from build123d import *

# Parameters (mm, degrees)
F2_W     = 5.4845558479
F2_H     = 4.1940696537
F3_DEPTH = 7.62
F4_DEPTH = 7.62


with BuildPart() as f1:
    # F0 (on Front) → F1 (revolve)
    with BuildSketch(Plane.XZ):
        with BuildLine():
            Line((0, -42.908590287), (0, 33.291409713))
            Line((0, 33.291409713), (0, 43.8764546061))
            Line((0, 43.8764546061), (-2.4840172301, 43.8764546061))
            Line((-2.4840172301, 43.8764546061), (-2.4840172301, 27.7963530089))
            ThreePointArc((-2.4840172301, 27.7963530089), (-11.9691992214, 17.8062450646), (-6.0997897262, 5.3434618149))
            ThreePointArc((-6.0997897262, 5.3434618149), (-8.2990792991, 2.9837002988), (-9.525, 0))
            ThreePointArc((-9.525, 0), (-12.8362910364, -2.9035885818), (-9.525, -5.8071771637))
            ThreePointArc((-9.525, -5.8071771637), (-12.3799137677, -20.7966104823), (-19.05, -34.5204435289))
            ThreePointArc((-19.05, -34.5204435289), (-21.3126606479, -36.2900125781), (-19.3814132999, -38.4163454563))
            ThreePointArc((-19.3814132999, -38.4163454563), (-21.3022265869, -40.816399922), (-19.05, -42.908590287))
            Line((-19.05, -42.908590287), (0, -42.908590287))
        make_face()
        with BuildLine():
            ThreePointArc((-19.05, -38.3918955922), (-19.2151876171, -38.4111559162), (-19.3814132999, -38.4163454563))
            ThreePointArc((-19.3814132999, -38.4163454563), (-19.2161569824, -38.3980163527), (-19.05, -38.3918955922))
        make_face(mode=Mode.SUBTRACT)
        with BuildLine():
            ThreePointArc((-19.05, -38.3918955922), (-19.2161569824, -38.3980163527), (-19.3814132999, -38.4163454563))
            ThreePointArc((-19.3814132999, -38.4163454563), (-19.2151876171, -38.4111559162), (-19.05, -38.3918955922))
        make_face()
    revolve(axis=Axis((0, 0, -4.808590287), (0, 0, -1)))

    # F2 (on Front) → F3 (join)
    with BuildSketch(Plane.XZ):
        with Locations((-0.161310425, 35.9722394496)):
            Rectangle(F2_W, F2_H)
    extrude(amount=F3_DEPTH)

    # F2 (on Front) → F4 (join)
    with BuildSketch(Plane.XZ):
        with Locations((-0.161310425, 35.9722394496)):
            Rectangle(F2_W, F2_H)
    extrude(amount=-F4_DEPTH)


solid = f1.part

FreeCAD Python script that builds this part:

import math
import FreeCAD as App
import Part
import Sketcher

V = App.Vector
Q = App.Units.Quantity


def add_polygon(sketch, points):
    """Adds a closed chain of lines whose ends are joined by coincident constraints."""
    first, n = sketch.GeometryCount, len(points)
    for a, b in zip(points, points[1:] + points[:1]):
        sketch.addGeometry(Part.LineSegment(App.Vector(*a, 0), App.Vector(*b, 0)), False)
    for i in range(n):
        sketch.addConstraint(Sketcher.Constraint("Coincident", first + i, 2, first + (i + 1) % n, 1))

doc = App.newDocument("Part")
body = doc.addObject("PartDesign::Body", "Body")

sketch1 = doc.addObject("Sketcher::SketchObject", "Sketch")
body.addObject(sketch1)
sketch1.AttachmentSupport = (doc.XZ_Plane, [""])
sketch1.MapMode = "FlatFace"
sketch1.addGeometry(Part.ArcOfCircle(Part.Circle(V(-19.05, -40.650243, 0), V(0, 0, 1), 2.258347), math.radians(98.438652), math.radians(270)), False)
sketch1.addGeometry(Part.LineSegment(V(-19.05, -42.90859, 0), V(0, -42.90859, 0)), False)
sketch1.addGeometry(Part.LineSegment(V(0, -42.90859, 0), V(0, 43.876455, 0)), False)
sketch1.addGeometry(Part.LineSegment(V(0, 43.876455, 0), V(-2.484017, 43.876455, 0)), False)
sketch1.addGeometry(Part.LineSegment(V(-2.484017, 43.876455, 0), V(-2.484017, 27.796353, 0)), False)
sketch1.addGeometry(Part.ArcOfCircle(Part.Circle(V(0.077618, 15.866248, 0), V(0, 0, 1), 12.202024), math.radians(102.118557), math.radians(239.584912)), False)
sketch1.addGeometry(Part.ArcOfCircle(Part.Circle(V(-0.722293, -1.873092, 0), V(0, 0, 1), 8.999785), math.radians(126.692052), math.radians(167.987426)), False)
sketch1.addGeometry(Part.ArcOfCircle(Part.Circle(V(-9.907603, -2.903589, 0), V(0, 0, 1), 2.928688), math.radians(82.493432), math.radians(277.506568)), False)
sketch1.addGeometry(Part.ArcOfCircle(Part.Circle(V(-67.358241, -2.558749, 0), V(0, 0, 1), 57.9244), math.radians(-33.489415), math.radians(-3.214861)), False)
sketch1.addGeometry(Part.ArcOfCircle(Part.Circle(V(-19.359416, -36.45617, 0), V(0, 0, 1), 1.960299), math.radians(80.918391), math.radians(269.357043)), False)
sketch1.addConstraint(Sketcher.Constraint("Tangent", 0, 2, 1, 1))
sketch1.addConstraint(Sketcher.Constraint("Coincident", 1, 2, 2, 1))
sketch1.addConstraint(Sketcher.Constraint("Coincident", 2, 2, 3, 1))
sketch1.addConstraint(Sketcher.Constraint("Coincident", 3, 2, 4, 1))
sketch1.addConstraint(Sketcher.Constraint("Coincident", 4, 2, 5, 1))
sketch1.addConstraint(Sketcher.Constraint("Coincident", 5, 2, 6, 1))
sketch1.addConstraint(Sketcher.Constraint("Coincident", 6, 2, 7, 1))
sketch1.addConstraint(Sketcher.Constraint("Coincident", 7, 2, 8, 2))
sketch1.addConstraint(Sketcher.Constraint("Coincident", 8, 1, 9, 1))
sketch1.addConstraint(Sketcher.Constraint("Coincident", 9, 2, 0, 1))
sketch1.addConstraint(Sketcher.Constraint("Horizontal", 1))
sketch1.addConstraint(Sketcher.Constraint("Vertical", 2))
sketch1.addConstraint(Sketcher.Constraint("Horizontal", 3))
sketch1.addConstraint(Sketcher.Constraint("Vertical", 4))
sketch1.addConstraint(Sketcher.Constraint("PointOnObject", 1, 2, -2))
sketch1.addConstraint(Sketcher.Constraint("PointOnObject", 6, 2, -1))
sketch1.addConstraint(Sketcher.Constraint("Vertical", 6, 2, 7, 2))
sketch1.addConstraint(Sketcher.Constraint("Vertical", 0, 2, 8, 1))
sketch1.addConstraint(Sketcher.Constraint("DistanceX", 1, 1, 1, 2, Q("0.75 in")))
sketch1.addConstraint(Sketcher.Constraint("Radius", 8, 57.9244))
sketch1.addConstraint(Sketcher.Constraint("Radius", 9, 1.960299))
sketch1.addConstraint(Sketcher.Constraint("DistanceX", 6, 2, -1, 1, Q("0.375 in")))
sketch1.addConstraint(Sketcher.Constraint("DistanceY", 0, 2, 7, 3, Q("1.5750001 in")))
sketch1.addConstraint(Sketcher.Constraint("DistanceY", 4, 2, 4, 1, 16.080102))
sketch1.addConstraint(Sketcher.Constraint("Radius", 0, 2.258347))
sketch1.addConstraint(Sketcher.Constraint("Radius", 5, 12.202024))
sketch1.addConstraint(Sketcher.Constraint("Radius", 6, 8.999785))
sketch1.addConstraint(Sketcher.Constraint("Radius", 7, 2.928688))
sketch1.addConstraint(Sketcher.Constraint("DistanceY", 0, 3, 8, 1, 6.129799))
sketch1.addConstraint(Sketcher.Constraint("DistanceX", 3, 2, 3, 1, 2.484017))
sketch1.addConstraint(Sketcher.Constraint("DistanceY", 2, 1, 2, 2, 86.785045))
sketch1.addConstraint(Sketcher.Constraint("DistanceY", 7, 3, -1, 1, 2.903589))
sketch1.addConstraint(Sketcher.Constraint("DistanceY", 9, 3, -1, 1, 36.45617))
sketch1.addConstraint(Sketcher.Constraint("DistanceX", 5, 2, -1, 1, 6.09979))
sketch1.addConstraint(Sketcher.Constraint("DistanceY", -1, 1, 5, 2, 5.343462))
revolution = doc.addObject("PartDesign::Revolution", "Revolution")
body.addObject(revolution)
revolution.Profile = sketch1
revolution.ReferenceAxis = (sketch1, ["V_Axis"])
revolution.Angle = 360

sketch2 = doc.addObject("Sketcher::SketchObject", "Sketch001")
body.addObject(sketch2)
sketch2.AttachmentSupport = (doc.XZ_Plane, [""])
sketch2.MapMode = "FlatFace"
add_polygon(sketch2, [(-2.903588, 38.069274), (-2.903588, 33.875205), (2.580967, 33.875205), (2.580967, 38.069274)])
sketch2.addConstraint(Sketcher.Constraint("Vertical", 0))
sketch2.addConstraint(Sketcher.Constraint("Horizontal", 1))
sketch2.addConstraint(Sketcher.Constraint("Vertical", 2))
sketch2.addConstraint(Sketcher.Constraint("Horizontal", 3))
sketch2.addConstraint(Sketcher.Constraint("DistanceY", 0, 2, 0, 1, 4.19407))
sketch2.addConstraint(Sketcher.Constraint("DistanceX", 1, 1, 1, 2, 5.484556))
sketch2.addConstraint(Sketcher.Constraint("DistanceX", 0, 2, -1, 1, 2.903588))
sketch2.addConstraint(Sketcher.Constraint("DistanceY", -1, 1, 0, 2, 33.875205))
pad1 = doc.addObject("PartDesign::Pad", "Pad")
body.addObject(pad1)
pad1.Profile = sketch2
pad1.Length = Q("0.3 in")

sketch3 = doc.addObject("Sketcher::SketchObject", "Sketch002")
body.addObject(sketch3)
sketch3.AttachmentSupport = (doc.XZ_Plane, [""])
sketch3.MapMode = "FlatFace"
add_polygon(sketch3, [(-2.903588, 38.069274), (-2.903588, 33.875205), (2.580967, 33.875205), (2.580967, 38.069274)])
sketch3.addConstraint(Sketcher.Constraint("Vertical", 0))
sketch3.addConstraint(Sketcher.Constraint("Horizontal", 1))
sketch3.addConstraint(Sketcher.Constraint("Vertical", 2))
sketch3.addConstraint(Sketcher.Constraint("Horizontal", 3))
sketch3.addConstraint(Sketcher.Constraint("DistanceY", 0, 2, 0, 1, 4.19407))
sketch3.addConstraint(Sketcher.Constraint("DistanceX", 1, 1, 1, 2, 5.484556))
sketch3.addConstraint(Sketcher.Constraint("DistanceX", 0, 2, -1, 1, 2.903588))
sketch3.addConstraint(Sketcher.Constraint("DistanceY", -1, 1, 0, 2, 33.875205))
pad2 = doc.addObject("PartDesign::Pad", "Pad001")
body.addObject(pad2)
pad2.Profile = sketch3
pad2.Length = Q("0.3 in")
pad2.Reversed = True

doc.recompute()
